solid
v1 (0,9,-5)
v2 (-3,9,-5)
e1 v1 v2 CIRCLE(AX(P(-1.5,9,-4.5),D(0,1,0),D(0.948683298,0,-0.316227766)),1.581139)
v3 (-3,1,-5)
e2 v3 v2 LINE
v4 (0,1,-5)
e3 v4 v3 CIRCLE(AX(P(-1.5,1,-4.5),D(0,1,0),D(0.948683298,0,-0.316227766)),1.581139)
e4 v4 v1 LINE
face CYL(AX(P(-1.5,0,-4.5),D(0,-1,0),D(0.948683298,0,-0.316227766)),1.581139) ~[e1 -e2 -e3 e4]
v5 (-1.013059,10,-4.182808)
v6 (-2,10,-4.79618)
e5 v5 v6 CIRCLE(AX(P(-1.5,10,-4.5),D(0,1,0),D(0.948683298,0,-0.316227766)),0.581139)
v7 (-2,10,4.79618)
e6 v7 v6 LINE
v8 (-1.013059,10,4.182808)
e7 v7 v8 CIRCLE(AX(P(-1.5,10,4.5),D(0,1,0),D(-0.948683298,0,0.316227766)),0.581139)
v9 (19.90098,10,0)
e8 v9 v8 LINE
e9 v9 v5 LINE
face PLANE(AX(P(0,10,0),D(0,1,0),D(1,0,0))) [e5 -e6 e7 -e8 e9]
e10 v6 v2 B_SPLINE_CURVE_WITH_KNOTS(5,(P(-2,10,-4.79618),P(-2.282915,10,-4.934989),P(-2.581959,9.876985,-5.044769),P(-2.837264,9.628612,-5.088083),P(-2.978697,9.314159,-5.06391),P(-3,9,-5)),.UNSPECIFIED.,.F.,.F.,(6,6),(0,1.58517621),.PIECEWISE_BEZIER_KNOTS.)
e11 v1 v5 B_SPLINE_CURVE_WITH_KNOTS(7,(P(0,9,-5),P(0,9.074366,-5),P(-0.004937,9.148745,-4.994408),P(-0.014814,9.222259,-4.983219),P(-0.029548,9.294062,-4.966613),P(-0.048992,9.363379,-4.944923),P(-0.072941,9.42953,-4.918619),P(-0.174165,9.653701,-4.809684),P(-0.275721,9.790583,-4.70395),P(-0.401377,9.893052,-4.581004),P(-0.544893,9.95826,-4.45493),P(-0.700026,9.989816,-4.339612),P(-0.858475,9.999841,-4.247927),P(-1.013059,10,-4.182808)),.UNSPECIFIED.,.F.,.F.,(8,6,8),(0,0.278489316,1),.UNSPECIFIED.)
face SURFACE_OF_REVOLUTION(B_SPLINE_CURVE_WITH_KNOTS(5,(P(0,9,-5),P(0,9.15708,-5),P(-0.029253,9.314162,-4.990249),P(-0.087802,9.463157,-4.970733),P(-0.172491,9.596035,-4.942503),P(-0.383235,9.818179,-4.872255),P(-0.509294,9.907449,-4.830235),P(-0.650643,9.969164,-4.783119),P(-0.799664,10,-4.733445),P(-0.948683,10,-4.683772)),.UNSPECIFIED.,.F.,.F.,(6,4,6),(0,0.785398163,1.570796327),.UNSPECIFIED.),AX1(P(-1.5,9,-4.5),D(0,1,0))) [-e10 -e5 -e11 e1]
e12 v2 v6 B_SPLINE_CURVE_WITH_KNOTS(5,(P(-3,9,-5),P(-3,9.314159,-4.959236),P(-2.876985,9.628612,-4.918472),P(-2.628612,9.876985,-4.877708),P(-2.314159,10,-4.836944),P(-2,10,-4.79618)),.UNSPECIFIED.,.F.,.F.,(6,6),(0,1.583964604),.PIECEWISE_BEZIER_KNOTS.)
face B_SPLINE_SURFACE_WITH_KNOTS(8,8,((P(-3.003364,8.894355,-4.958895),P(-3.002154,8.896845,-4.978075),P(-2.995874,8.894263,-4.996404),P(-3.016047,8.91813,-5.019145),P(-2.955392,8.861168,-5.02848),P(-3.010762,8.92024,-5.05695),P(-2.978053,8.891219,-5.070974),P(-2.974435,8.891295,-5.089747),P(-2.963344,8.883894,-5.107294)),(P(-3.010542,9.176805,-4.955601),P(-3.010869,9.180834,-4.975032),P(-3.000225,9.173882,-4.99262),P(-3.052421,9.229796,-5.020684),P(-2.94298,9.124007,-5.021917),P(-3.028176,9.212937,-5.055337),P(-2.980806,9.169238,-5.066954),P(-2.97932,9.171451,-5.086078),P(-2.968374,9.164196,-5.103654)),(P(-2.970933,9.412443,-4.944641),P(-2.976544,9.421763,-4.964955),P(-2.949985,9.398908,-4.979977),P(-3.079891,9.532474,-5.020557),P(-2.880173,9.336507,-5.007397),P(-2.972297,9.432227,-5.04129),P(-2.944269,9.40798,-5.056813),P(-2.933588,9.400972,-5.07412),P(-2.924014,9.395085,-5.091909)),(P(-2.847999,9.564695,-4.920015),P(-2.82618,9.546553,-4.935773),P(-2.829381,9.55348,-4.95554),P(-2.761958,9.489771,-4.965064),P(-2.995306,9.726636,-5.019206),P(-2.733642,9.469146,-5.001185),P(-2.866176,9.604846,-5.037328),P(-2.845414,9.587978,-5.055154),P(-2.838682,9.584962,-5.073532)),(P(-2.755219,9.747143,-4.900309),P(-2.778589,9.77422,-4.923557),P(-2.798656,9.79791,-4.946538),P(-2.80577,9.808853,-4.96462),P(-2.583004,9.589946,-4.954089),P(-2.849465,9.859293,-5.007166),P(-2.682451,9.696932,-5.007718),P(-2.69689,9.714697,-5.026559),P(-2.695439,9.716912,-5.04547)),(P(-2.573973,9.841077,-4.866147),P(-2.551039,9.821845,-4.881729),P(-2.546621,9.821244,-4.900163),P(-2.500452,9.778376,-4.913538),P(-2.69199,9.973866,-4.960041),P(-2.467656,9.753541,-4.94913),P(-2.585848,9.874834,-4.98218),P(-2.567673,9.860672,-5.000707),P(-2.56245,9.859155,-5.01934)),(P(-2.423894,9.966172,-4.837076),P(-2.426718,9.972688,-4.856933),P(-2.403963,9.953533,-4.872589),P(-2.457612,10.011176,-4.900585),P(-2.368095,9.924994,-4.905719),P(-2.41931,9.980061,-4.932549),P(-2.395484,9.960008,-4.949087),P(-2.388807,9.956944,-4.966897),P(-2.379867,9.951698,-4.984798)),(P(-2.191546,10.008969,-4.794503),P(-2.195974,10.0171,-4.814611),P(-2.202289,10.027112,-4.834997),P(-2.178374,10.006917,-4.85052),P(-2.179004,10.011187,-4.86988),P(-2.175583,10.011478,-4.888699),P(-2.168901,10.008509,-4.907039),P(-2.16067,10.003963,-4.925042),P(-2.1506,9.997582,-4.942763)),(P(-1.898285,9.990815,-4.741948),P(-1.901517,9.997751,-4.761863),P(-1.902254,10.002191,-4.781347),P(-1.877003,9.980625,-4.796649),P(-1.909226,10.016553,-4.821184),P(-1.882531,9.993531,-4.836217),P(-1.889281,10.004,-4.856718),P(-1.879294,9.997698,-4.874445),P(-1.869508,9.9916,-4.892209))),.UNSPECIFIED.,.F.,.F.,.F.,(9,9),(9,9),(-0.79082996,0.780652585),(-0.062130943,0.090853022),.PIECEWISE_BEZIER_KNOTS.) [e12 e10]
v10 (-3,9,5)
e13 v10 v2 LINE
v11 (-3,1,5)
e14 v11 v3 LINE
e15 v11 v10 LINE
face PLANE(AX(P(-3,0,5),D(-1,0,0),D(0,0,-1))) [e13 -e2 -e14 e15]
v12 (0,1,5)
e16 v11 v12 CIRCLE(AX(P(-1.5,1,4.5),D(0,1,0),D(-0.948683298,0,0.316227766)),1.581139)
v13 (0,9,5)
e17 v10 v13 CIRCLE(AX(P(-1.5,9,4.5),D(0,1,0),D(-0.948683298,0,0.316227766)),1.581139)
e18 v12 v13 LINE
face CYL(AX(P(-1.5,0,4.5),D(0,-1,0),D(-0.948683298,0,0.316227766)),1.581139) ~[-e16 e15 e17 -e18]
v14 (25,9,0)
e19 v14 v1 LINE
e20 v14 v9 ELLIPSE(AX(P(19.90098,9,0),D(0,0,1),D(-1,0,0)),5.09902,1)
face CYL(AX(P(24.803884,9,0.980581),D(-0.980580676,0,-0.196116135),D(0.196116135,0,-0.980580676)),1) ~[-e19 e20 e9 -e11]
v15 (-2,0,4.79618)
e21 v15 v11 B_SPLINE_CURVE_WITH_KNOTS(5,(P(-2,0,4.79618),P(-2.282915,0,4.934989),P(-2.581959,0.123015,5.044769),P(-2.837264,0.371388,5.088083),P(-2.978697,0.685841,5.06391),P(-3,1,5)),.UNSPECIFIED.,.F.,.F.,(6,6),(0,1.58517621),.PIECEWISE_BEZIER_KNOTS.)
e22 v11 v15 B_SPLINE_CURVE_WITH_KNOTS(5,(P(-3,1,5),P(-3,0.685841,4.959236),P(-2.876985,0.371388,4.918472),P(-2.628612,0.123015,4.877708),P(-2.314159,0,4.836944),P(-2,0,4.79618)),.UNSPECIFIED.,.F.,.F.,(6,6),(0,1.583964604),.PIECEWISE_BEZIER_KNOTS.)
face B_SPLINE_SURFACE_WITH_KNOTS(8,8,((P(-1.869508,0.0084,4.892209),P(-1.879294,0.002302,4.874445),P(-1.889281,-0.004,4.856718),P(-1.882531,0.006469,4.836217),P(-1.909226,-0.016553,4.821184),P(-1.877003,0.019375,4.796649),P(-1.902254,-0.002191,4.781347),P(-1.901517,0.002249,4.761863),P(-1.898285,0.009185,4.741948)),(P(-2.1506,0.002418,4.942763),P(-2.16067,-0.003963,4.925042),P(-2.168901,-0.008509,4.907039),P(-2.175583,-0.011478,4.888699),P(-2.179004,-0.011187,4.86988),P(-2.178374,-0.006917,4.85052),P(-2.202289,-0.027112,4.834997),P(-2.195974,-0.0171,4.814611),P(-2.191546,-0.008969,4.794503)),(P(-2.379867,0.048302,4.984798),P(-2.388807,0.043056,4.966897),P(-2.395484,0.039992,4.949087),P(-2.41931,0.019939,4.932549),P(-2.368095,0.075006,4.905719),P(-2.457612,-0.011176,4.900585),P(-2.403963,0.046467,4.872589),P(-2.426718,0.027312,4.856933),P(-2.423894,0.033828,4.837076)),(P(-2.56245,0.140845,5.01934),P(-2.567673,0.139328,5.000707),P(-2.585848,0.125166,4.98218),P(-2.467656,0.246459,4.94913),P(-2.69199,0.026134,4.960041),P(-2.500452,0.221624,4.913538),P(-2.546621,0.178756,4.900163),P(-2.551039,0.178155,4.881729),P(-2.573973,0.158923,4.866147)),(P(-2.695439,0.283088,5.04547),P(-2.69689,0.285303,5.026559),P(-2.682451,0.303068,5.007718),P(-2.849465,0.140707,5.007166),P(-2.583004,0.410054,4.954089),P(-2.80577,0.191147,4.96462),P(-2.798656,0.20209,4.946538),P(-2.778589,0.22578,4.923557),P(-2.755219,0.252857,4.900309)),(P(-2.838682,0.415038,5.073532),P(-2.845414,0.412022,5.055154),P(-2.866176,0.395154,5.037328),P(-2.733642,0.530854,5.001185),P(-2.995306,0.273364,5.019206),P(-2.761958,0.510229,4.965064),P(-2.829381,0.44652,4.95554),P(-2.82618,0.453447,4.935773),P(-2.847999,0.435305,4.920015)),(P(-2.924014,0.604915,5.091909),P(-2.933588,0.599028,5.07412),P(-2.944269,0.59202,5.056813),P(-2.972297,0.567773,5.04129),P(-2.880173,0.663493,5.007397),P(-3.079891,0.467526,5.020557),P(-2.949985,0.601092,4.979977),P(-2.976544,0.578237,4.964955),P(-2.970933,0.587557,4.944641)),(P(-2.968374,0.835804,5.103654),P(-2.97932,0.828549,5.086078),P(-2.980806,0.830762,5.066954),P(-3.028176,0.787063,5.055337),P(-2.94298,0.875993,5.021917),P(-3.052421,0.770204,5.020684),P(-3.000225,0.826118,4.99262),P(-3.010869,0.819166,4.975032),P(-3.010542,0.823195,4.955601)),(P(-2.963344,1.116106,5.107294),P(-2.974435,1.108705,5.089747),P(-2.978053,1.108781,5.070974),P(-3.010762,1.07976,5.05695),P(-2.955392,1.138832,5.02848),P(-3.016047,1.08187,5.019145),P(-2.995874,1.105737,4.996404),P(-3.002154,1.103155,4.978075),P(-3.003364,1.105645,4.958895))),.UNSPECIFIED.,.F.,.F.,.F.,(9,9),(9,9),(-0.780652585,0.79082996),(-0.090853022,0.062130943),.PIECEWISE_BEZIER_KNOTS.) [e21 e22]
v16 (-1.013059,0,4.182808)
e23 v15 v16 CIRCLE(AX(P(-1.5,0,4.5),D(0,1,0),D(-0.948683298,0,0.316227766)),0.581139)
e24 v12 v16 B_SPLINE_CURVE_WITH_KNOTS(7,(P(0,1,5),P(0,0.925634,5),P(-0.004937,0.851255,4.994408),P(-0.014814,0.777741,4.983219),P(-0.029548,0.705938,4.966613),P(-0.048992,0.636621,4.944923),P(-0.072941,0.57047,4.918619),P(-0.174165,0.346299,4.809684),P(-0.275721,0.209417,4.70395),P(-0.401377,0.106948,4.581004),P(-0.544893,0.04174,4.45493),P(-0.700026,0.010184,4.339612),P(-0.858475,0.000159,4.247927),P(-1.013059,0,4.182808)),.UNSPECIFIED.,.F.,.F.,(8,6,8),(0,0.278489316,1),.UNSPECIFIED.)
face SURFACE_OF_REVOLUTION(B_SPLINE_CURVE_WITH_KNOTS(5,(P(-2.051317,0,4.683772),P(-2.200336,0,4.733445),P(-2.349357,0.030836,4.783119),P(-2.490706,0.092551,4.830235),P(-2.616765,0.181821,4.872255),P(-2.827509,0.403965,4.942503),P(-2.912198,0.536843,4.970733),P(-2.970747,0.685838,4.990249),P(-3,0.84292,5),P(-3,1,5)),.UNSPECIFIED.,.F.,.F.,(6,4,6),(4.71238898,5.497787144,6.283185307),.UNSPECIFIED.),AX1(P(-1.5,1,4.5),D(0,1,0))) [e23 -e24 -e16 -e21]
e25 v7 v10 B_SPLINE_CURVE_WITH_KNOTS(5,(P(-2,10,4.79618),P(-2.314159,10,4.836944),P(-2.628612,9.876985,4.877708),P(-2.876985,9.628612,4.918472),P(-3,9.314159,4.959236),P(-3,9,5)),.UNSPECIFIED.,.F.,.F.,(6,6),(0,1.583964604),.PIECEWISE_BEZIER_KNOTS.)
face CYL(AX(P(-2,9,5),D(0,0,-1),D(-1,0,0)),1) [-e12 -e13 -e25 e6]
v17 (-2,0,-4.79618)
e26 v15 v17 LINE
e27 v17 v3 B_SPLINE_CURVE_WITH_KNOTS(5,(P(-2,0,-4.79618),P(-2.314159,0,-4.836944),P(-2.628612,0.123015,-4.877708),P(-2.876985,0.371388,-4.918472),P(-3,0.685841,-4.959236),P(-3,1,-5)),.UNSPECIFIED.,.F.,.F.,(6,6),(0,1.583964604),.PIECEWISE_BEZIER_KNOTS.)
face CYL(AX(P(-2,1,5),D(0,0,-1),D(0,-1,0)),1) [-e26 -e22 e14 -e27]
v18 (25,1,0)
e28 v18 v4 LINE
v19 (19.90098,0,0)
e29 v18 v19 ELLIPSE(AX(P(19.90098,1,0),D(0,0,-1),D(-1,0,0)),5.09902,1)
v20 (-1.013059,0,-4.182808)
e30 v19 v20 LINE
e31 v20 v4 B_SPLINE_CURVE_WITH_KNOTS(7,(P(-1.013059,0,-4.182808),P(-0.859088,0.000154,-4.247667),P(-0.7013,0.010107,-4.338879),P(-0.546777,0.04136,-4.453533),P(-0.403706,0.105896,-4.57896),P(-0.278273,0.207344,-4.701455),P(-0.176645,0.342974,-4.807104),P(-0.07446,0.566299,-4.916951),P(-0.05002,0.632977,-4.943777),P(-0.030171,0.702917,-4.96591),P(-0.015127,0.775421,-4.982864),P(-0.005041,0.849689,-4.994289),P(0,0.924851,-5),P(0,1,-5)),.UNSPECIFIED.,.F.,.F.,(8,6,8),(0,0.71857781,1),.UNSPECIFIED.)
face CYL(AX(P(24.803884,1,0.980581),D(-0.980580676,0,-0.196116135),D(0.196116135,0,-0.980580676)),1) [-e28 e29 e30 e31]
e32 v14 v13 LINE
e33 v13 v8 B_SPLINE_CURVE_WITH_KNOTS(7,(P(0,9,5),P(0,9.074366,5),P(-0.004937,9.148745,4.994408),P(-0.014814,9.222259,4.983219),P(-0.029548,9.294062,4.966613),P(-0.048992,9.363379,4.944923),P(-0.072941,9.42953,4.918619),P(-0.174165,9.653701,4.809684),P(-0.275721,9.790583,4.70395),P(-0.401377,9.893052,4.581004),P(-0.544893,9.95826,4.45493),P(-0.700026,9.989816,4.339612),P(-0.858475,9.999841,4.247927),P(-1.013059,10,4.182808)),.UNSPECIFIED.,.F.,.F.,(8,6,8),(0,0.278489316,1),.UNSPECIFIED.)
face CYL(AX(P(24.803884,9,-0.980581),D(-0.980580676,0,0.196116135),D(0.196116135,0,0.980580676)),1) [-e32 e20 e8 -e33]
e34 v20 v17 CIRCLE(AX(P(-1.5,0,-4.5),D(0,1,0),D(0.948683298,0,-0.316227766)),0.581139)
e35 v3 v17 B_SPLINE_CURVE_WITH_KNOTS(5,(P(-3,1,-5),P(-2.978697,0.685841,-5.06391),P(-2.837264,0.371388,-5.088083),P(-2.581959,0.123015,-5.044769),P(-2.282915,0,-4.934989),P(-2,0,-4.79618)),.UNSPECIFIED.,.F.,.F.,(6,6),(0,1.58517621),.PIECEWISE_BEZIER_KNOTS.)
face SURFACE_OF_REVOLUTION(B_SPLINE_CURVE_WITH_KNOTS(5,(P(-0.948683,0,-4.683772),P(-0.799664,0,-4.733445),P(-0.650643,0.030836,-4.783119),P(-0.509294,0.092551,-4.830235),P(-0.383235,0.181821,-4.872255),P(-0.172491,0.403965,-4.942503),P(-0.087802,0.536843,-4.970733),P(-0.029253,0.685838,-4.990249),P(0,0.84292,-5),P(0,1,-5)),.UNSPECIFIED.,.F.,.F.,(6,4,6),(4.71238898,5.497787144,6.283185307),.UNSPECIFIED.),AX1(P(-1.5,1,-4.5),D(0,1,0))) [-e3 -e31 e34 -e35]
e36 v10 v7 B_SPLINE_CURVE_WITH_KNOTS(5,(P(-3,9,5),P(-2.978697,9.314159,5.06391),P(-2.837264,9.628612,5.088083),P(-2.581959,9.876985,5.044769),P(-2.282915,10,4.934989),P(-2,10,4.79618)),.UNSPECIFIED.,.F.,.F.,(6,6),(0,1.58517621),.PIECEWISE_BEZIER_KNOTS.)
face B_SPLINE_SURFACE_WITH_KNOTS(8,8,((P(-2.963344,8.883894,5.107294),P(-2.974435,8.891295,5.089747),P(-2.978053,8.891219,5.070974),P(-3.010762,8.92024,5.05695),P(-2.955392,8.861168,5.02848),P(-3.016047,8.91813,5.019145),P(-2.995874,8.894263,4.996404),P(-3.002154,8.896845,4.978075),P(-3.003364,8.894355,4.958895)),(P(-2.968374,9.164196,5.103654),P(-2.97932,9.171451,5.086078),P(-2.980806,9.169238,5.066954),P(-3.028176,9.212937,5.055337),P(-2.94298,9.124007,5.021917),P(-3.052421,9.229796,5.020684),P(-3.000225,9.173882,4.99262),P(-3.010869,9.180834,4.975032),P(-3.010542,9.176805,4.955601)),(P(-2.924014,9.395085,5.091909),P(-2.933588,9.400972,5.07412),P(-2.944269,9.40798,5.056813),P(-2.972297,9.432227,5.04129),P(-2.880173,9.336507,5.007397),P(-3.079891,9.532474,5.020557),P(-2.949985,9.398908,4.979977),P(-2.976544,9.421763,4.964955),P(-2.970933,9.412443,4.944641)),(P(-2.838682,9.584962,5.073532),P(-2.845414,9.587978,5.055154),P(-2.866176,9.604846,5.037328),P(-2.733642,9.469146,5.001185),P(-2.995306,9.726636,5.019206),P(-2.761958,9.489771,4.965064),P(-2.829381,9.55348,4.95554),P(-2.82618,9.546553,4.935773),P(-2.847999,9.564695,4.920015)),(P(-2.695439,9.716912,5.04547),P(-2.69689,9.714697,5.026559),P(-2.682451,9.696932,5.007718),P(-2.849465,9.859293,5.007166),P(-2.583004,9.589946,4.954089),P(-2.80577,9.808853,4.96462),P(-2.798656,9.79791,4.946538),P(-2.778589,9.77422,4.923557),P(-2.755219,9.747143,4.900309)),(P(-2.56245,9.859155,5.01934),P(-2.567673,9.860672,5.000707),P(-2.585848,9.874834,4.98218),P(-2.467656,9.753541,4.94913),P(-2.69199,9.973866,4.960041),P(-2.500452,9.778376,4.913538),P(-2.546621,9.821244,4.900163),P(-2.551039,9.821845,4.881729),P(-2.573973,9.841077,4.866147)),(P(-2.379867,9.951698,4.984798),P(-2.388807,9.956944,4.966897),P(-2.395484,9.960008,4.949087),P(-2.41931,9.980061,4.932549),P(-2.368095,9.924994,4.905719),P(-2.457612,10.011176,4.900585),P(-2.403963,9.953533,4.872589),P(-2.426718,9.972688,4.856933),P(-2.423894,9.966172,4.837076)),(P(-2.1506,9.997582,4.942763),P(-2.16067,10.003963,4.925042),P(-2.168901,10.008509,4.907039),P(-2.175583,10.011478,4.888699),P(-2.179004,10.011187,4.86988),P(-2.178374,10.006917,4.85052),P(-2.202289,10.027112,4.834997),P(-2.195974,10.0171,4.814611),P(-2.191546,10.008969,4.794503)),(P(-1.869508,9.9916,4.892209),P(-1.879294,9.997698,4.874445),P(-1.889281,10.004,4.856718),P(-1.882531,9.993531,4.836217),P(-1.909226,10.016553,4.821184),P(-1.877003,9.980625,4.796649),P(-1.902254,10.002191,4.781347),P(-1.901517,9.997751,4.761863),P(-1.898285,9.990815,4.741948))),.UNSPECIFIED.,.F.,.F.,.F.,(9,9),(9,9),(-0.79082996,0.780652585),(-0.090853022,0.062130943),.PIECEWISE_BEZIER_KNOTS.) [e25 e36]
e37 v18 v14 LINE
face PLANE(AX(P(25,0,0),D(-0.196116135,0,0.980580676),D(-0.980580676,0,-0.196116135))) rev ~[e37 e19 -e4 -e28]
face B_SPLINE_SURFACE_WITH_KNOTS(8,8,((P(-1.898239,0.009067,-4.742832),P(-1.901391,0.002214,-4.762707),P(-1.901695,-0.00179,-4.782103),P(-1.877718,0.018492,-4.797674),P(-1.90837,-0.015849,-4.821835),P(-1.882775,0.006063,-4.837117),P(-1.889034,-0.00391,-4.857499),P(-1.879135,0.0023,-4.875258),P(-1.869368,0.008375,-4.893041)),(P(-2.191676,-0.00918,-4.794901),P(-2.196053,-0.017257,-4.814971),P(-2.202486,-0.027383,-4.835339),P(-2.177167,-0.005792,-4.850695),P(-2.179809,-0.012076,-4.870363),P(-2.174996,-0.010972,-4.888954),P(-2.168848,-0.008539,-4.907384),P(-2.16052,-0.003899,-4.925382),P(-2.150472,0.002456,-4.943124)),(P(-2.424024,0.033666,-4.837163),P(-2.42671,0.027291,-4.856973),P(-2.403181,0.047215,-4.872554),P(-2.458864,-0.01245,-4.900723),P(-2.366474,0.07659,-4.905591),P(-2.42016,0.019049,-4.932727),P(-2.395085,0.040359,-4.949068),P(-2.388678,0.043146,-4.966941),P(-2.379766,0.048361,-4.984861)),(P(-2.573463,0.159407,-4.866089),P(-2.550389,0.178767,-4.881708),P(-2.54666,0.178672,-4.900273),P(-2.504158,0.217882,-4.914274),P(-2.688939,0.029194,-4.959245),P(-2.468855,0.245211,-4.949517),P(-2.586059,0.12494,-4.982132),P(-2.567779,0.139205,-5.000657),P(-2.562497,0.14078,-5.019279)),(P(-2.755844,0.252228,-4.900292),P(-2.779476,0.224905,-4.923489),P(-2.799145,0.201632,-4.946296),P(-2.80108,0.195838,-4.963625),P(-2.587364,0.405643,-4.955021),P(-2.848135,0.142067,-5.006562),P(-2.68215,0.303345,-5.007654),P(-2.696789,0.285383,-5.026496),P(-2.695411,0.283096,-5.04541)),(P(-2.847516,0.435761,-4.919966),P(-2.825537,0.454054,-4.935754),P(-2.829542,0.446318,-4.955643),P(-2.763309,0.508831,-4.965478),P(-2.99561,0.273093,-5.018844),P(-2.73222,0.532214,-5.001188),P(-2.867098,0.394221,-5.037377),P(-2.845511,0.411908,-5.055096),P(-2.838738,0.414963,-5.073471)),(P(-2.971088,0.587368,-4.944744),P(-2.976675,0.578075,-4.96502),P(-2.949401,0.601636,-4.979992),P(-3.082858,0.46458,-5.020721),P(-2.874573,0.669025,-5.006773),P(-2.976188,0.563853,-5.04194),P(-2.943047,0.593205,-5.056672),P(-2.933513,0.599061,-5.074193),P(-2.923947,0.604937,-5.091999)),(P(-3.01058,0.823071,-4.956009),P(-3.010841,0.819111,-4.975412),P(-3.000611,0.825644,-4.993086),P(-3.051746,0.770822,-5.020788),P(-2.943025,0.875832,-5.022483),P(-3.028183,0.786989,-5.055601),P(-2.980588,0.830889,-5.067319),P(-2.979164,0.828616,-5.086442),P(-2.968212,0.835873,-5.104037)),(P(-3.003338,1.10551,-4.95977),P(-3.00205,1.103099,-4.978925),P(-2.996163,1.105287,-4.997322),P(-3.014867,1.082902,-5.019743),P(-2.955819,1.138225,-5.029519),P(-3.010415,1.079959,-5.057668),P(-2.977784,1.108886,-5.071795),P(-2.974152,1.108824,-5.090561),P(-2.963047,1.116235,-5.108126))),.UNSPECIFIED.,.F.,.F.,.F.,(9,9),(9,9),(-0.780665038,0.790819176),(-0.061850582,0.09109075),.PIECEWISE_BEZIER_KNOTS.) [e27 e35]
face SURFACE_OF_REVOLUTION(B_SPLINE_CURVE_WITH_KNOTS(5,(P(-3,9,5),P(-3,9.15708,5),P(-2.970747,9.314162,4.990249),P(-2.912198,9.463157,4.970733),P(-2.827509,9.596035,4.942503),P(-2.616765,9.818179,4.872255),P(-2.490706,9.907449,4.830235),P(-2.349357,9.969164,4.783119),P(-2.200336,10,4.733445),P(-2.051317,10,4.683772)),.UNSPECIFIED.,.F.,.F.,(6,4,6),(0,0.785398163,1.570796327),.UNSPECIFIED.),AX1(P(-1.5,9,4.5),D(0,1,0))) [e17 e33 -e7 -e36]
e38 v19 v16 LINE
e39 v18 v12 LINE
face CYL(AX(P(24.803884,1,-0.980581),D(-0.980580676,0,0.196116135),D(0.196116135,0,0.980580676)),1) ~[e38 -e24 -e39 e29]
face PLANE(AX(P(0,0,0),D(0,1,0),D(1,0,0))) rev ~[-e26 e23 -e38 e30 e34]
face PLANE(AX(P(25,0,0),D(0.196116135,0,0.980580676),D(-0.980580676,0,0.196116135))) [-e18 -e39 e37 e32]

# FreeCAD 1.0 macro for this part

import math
import FreeCAD as App
import Part
import Sketcher

V = App.Vector


def edges_at(feature, points):
    """Names of the edges that pass closest to the given points."""
    edges = feature.Shape.Edges
    near = lambda p: min(range(len(edges)), key=lambda i: edges[i].distToShape(Part.Vertex(*p))[0])
    return sorted({f"Edge{near(p) + 1}" for p in points})

doc = App.newDocument("Part")
body = doc.addObject("PartDesign::Body", "Body")

sketch1 = doc.addObject("Sketcher::SketchObject", "Sketch")
body.addObject(sketch1)
sketch1.AttachmentSupport = (doc.XZ_Plane, [""])
sketch1.MapMode = "FlatFace"
sketch1.addGeometry([
    Part.LineSegment(V(0, 5, 0), V(25, 0, 0)),
    Part.LineSegment(V(25, 0, 0), V(0, -5, 0)),
    Part.ArcOfCircle(Part.Circle(V(-1.5, -4.5, 0), V(0, 0, 1), 1.6), math.radians(-162), math.radians(-18)),
    Part.LineSegment(V(-3, -5, 0), V(-3, 5, 0)),
    Part.ArcOfCircle(Part.Circle(V(-1.5, 4.5, 0), V(0, 0, 1), 1.6), math.radians(18), math.radians(162)),
], False)
sketch1.addConstraint([
    Sketcher.Constraint("Coincident", 0, 2, 1, 1),
    Sketcher.Constraint("Coincident", 1, 2, 2, 2),
    Sketcher.Constraint("Coincident", 2, 1, 3, 1),
    Sketcher.Constraint("Coincident", 3, 2, 4, 2),
    Sketcher.Constraint("Coincident", 4, 1, 0, 1),
    Sketcher.Constraint("Vertical", 3),
    Sketcher.Constraint("Equal", 2, 4),
    Sketcher.Constraint("Symmetric", 1, 2, 4, 1, -1, 1),
    Sketcher.Constraint("Symmetric", 2, 3, 4, 3, -1),
    Sketcher.Constraint("PointOnObject", 0, 2, -1),
    Sketcher.Constraint("Horizontal", 1, 2, 2, 1),
    Sketcher.Constraint("DistanceX", 2, 1, -1, 1, 3.0),
    Sketcher.Constraint("DistanceY", 3, 1, 3, 2, 10.0),
    Sketcher.Constraint("DistanceX", -1, 1, 0, 2, 25.0),
    Sketcher.Constraint("DistanceY", 2, 3, 4, 3, 9.0),
])
pad1 = doc.addObject("PartDesign::Pad", "Pad")
body.addObject(pad1)
pad1.Profile = sketch1
pad1.Length = 10
pad1.Reversed = True
doc.recompute()

fillet = doc.addObject("PartDesign::Fillet", "Fillet")
body.addObject(fillet)
fillet.Base = (pad1, edges_at(pad1, [
    (12.5, 10, 2.5),
    (12.5, 10, -2.5),
    (-1.5, 10, 6.081),
    (-3, 10, 0),
    (-1.5, 10, -6.081),
]))
fillet.Radius = 1
doc.recompute()

fillet2 = doc.addObject("PartDesign::Fillet", "Fillet001")
body.addObject(fillet2)
fillet2.Base = (fillet, edges_at(fillet, [
    (12.5, 0, 2.5),
    (-1.5, 0, 6.081),
    (-3, 0, 0),
    (-1.5, 0, -6.081),
    (12.5, 0, -2.5),
]))
fillet2.Radius = 1

doc.recompute()
